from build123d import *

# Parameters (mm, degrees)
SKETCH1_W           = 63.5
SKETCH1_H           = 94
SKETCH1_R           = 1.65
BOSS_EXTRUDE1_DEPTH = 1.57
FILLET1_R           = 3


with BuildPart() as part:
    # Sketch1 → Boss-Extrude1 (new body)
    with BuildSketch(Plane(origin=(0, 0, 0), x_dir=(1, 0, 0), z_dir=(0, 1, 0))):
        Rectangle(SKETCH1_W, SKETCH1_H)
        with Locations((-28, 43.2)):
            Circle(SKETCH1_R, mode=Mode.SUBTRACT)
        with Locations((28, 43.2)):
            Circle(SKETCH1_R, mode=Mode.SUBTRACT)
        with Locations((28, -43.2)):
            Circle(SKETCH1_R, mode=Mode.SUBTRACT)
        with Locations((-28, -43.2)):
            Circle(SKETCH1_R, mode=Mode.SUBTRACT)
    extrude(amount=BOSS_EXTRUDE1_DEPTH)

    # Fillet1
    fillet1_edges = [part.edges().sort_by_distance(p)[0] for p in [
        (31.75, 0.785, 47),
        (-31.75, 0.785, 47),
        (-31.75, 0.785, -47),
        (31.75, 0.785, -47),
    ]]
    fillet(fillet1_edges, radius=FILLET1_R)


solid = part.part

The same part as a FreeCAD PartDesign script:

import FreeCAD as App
import Part
import Sketcher


def edges_at(feature, points):
    """Names of the edges that pass closest to the given points."""
    edges = feature.Shape.Edges
    near = lambda p: min(range(len(edges)), key=lambda i: edges[i].distToShape(Part.Vertex(*p))[0])
    return sorted({f"Edge{near(p) + 1}" for p in points})

doc = App.newDocument("Part")
body = doc.addObject("PartDesign::Body", "Body")

sketch1 = body.newObject("Sketcher::SketchObject", "Sketch")
sketch1.AttachmentSupport = (doc.getObject("XZ_Plane"), [""])
sketch1.MapMode = "FlatFace"
sketch1.addGeometry(Part.LineSegment(App.Vector(-31.8, -47, 0), App.Vector(-31.8, 47, 0)), False)
sketch1.addGeometry(Part.LineSegment(App.Vector(-31.8, 47, 0), App.Vector(31.8, 47, 0)), False)
sketch1.addGeometry(Part.LineSegment(App.Vector(31.8, 47, 0), App.Vector(31.8, -47, 0)), False)
sketch1.addGeometry(Part.LineSegment(App.Vector(31.8, -47, 0), App.Vector(-31.8, -47, 0)), False)
sketch1.addGeometry(Part.Circle(App.Vector(-28, 43.2, 0), App.Vector(0, 0, 1), 1.6), False)
sketch1.addGeometry(Part.Circle(App.Vector(28, 43.2, 0), App.Vector(0, 0, 1), 1.6), False)
sketch1.addGeometry(Part.Circle(App.Vector(-28, -43.2, 0), App.Vector(0, 0, 1), 1.6), False)
sketch1.addGeometry(Part.Circle(App.Vector(28, -43.2, 0), App.Vector(0, 0, 1), 1.6), False)
sketch1.addConstraint(Sketcher.Constraint("Coincident", 0, 2, 1, 1))
sketch1.addConstraint(Sketcher.Constraint("Coincident", 1, 2, 2, 1))
sketch1.addConstraint(Sketcher.Constraint("Coincident", 2, 2, 3, 1))
sketch1.addConstraint(Sketcher.Constraint("Coincident", 3, 2, 0, 1))
sketch1.addConstraint(Sketcher.Constraint("Vertical", 0))
sketch1.addConstraint(Sketcher.Constraint("Horizontal", 1))
sketch1.addConstraint(Sketcher.Constraint("Vertical", 2))
sketch1.addConstraint(Sketcher.Constraint("Horizontal", 3))
sketch1.addConstraint(Sketcher.Constraint("Equal", 4, 5))
sketch1.addConstraint(Sketcher.Constraint("Equal", 5, 6))
sketch1.addConstraint(Sketcher.Constraint("Equal", 6, 7))
sketch1.addConstraint(Sketcher.Constraint("Symmetric", 5, 3, 6, 3, -1, 1))
sketch1.addConstraint(Sketcher.Constraint("Symmetric", 4, 3, 7, 3, -1, 1))
sketch1.addConstraint(Sketcher.Constraint("Symmetric", 0, 2, 2, 2, -1, 1))
sketch1.addConstraint(Sketcher.Constraint("Symmetric", 4, 3, 5, 3, -2))
sketch1.addConstraint(Sketcher.Constraint("Diameter", 4, 3.3))
sketch1.addConstraint(Sketcher.Constraint("DistanceY", 0, 1, 0, 2, 94.0))
sketch1.addConstraint(Sketcher.Constraint("DistanceX", 1, 1, 1, 2, 63.5))
sketch1.addConstraint(Sketcher.Constraint("DistanceX", 4, 3, -1, 1, 28.0))
sketch1.addConstraint(Sketcher.Constraint("DistanceY", -1, 1, 4, 3, 43.2))
pad1 = body.newObject("PartDesign::Pad", "Pad")
pad1.Profile = sketch1
pad1.Length = 1.57
pad1.Reversed = True
doc.recompute()

fillet = body.newObject("PartDesign::Fillet", "Fillet")
fillet.Base = (pad1, edges_at(pad1, [
    (31.75, 0.785, 47),
    (-31.75, 0.785, 47),
    (-31.75, 0.785, -47),
    (31.75, 0.785, -47),
]))
fillet.Radius = 3

doc.recompute()
